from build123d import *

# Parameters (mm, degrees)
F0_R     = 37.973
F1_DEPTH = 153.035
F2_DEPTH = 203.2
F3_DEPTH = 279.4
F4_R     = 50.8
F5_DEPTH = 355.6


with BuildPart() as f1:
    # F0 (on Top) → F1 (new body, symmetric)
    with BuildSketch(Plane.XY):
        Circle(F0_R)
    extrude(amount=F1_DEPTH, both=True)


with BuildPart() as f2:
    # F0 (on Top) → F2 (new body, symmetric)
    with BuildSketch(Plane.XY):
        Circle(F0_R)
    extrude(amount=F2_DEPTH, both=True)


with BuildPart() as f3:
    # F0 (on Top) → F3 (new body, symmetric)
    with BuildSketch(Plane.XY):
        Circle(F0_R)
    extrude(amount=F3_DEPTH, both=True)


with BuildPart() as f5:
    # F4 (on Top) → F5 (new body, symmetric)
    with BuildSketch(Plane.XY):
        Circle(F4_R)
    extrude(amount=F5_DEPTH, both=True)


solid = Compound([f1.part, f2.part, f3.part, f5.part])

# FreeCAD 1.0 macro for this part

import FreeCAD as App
import Part
import Sketcher
Q = App.Units.Quantity

doc = App.newDocument("Part")
body = doc.addObject("PartDesign::Body", "Body")

sketch1 = body.newObject("Sketcher::SketchObject", "Sketch")
sketch1.AttachmentSupport = (doc.getObject("XY_Plane"), [""])
sketch1.MapMode = "FlatFace"
sketch1.addGeometry(Part.Circle(App.Vector(0, 0, 0), App.Vector(0, 0, 1), 38), False)
sketch1.addConstraint(Sketcher.Constraint("Coincident", 0, 3, -1, 1))
sketch1.addConstraint(Sketcher.Constraint("Diameter", 0, Q("2.99 in")))
pad1 = body.newObject("PartDesign::Pad", "Pad")
pad1.Profile = sketch1
pad1.Length = Q("12.05 in")
pad1.Midplane = True
body2 = doc.addObject("PartDesign::Body", "Body001")

sketch2 = body2.newObject("Sketcher::SketchObject", "Sketch001")
sketch2.AttachmentSupport = (doc.getObject("XY_Plane001"), [""])
sketch2.MapMode = "FlatFace"
sketch2.addGeometry(Part.Circle(App.Vector(0, 0, 0), App.Vector(0, 0, 1), 38), False)
sketch2.addConstraint(Sketcher.Constraint("Coincident", 0, 3, -1, 1))
sketch2.addConstraint(Sketcher.Constraint("Diameter", 0, Q("2.99 in")))
pad2 = body2.newObject("PartDesign::Pad", "Pad001")
pad2.Profile = sketch2
pad2.Length = Q("16 in")
pad2.Midplane = True
body3 = doc.addObject("PartDesign::Body", "Body002")

sketch3 = body3.newObject("Sketcher::SketchObject", "Sketch002")
sketch3.AttachmentSupport = (doc.getObject("XY_Plane002"), [""])
sketch3.MapMode = "FlatFace"
sketch3.addGeometry(Part.Circle(App.Vector(0, 0, 0), App.Vector(0, 0, 1), 38), False)
sketch3.addConstraint(Sketcher.Constraint("Coincident", 0, 3, -1, 1))
sketch3.addConstraint(Sketcher.Constraint("Diameter", 0, Q("2.99 in")))
pad3 = body3.newObject("PartDesign::Pad", "Pad002")
pad3.Profile = sketch3
pad3.Length = Q("22 in")
pad3.Midplane = True
body4 = doc.addObject("PartDesign::Body", "Body003")

sketch4 = body4.newObject("Sketcher::SketchObject", "Sketch003")
sketch4.AttachmentSupport = (doc.getObject("XY_Plane003"), [""])
sketch4.MapMode = "FlatFace"
sketch4.addGeometry(Part.Circle(App.Vector(0, 0, 0), App.Vector(0, 0, 1), 51), False)
sketch4.addConstraint(Sketcher.Constraint("Coincident", 0, 3, -1, 1))
sketch4.addConstraint(Sketcher.Constraint("Diameter", 0, Q("4 in")))
pad4 = body4.newObject("PartDesign::Pad", "Pad003")
pad4.Profile = sketch4
pad4.Length = Q("28 in")
pad4.Midplane = True

doc.recompute()
